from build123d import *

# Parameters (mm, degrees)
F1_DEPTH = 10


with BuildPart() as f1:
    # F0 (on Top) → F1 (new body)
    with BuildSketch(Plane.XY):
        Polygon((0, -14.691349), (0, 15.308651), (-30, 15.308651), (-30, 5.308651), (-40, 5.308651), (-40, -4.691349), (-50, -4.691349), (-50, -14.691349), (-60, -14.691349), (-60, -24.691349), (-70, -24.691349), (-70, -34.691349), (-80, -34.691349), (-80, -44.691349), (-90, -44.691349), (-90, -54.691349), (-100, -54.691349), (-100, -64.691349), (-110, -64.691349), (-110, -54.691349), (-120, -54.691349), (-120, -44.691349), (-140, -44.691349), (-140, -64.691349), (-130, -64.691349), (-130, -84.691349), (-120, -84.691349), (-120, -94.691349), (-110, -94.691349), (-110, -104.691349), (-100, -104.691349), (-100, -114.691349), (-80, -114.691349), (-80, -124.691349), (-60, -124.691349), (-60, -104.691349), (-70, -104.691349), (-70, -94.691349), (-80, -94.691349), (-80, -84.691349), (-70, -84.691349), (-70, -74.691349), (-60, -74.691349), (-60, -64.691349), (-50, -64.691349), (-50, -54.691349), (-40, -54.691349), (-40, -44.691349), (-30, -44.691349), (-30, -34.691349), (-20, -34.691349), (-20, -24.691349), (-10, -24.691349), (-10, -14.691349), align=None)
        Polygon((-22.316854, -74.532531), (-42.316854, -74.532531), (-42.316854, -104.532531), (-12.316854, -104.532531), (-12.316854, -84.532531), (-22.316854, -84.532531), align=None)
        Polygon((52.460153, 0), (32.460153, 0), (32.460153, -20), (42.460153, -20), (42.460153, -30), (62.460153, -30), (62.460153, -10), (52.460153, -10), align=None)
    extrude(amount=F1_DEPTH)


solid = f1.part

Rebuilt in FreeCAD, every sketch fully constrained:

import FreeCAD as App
import Part
import Sketcher
Q = App.Units.Quantity

doc = App.newDocument("Part")
body = doc.addObject("PartDesign::Body", "Body")
body.AllowCompound = True

# Sketch on XY plane
sketch1 = body.newObject("Sketcher::SketchObject", "Sketch")
sketch1.AttachmentSupport = (doc.getObject("XY_Plane"), [""])
sketch1.MapMode = "FlatFace"
sketch1.addGeometry([
    Part.LineSegment(App.Vector(0, -15, 0), App.Vector(0, 15, 0)),  # 0
    Part.LineSegment(App.Vector(0, 15, 0), App.Vector(-30, 15, 0)),  # 1
    Part.LineSegment(App.Vector(-30, 15, 0), App.Vector(-30, 5, 0)),  # 2
    Part.LineSegment(App.Vector(-30, 5, 0), App.Vector(-40, 5, 0)),  # 3
    Part.LineSegment(App.Vector(-40, 5, 0), App.Vector(-40, -5, 0)),  # 4
    Part.LineSegment(App.Vector(-40, -5, 0), App.Vector(-50, -5, 0)),  # 5
    Part.LineSegment(App.Vector(-50, -5, 0), App.Vector(-50, -15, 0)),  # 6
    Part.LineSegment(App.Vector(-50, -15, 0), App.Vector(-60, -15, 0)),  # 7
    Part.LineSegment(App.Vector(-60, -15, 0), App.Vector(-60, -25, 0)),  # 8
    Part.LineSegment(App.Vector(-60, -25, 0), App.Vector(-70, -25, 0)),  # 9
    Part.LineSegment(App.Vector(-70, -25, 0), App.Vector(-70, -35, 0)),  # 10
    Part.LineSegment(App.Vector(-70, -35, 0), App.Vector(-80, -35, 0)),  # 11
    Part.LineSegment(App.Vector(-80, -35, 0), App.Vector(-80, -45, 0)),  # 12
    Part.LineSegment(App.Vector(-80, -45, 0), App.Vector(-90, -45, 0)),  # 13
    Part.LineSegment(App.Vector(-90, -45, 0), App.Vector(-90, -55, 0)),  # 14
    Part.LineSegment(App.Vector(-90, -55, 0), App.Vector(-100, -55, 0)),  # 15
    Part.LineSegment(App.Vector(-100, -55, 0), App.Vector(-100, -65, 0)),  # 16
    Part.LineSegment(App.Vector(-100, -65, 0), App.Vector(-110, -65, 0)),  # 17
    Part.LineSegment(App.Vector(-110, -65, 0), App.Vector(-110, -55, 0)),  # 18
    Part.LineSegment(App.Vector(-110, -55, 0), App.Vector(-120, -55, 0)),  # 19
    Part.LineSegment(App.Vector(-120, -55, 0), App.Vector(-120, -45, 0)),  # 20
    Part.LineSegment(App.Vector(-120, -45, 0), App.Vector(-140, -45, 0)),  # 21
    Part.LineSegment(App.Vector(-140, -45, 0), App.Vector(-140, -65, 0)),  # 22
    Part.LineSegment(App.Vector(-140, -65, 0), App.Vector(-130, -65, 0)),  # 23
    Part.LineSegment(App.Vector(-130, -65, 0), App.Vector(-130, -85, 0)),  # 24
    Part.LineSegment(App.Vector(-130, -85, 0), App.Vector(-120, -85, 0)),  # 25
    Part.LineSegment(App.Vector(-120, -85, 0), App.Vector(-120, -95, 0)),  # 26
    Part.LineSegment(App.Vector(-120, -95, 0), App.Vector(-110, -95, 0)),  # 27
    Part.LineSegment(App.Vector(-110, -95, 0), App.Vector(-110, -105, 0)),  # 28
    Part.LineSegment(App.Vector(-110, -105, 0), App.Vector(-100, -105, 0)),  # 29
    Part.LineSegment(App.Vector(-100, -105, 0), App.Vector(-100, -115, 0)),  # 30
    Part.LineSegment(App.Vector(-100, -115, 0), App.Vector(-80, -115, 0)),  # 31
    Part.LineSegment(App.Vector(-80, -115, 0), App.Vector(-80, -125, 0)),  # 32
    Part.LineSegment(App.Vector(-80, -125, 0), App.Vector(-60, -125, 0)),  # 33
    Part.LineSegment(App.Vector(-60, -125, 0), App.Vector(-60, -105, 0)),  # 34
    Part.LineSegment(App.Vector(-60, -105, 0), App.Vector(-70, -105, 0)),  # 35
    Part.LineSegment(App.Vector(-70, -105, 0), App.Vector(-70, -95, 0)),  # 36
    Part.LineSegment(App.Vector(-70, -95, 0), App.Vector(-80, -95, 0)),  # 37
    Part.LineSegment(App.Vector(-80, -95, 0), App.Vector(-80, -85, 0)),  # 38
    Part.LineSegment(App.Vector(-80, -85, 0), App.Vector(-70, -85, 0)),  # 39
    Part.LineSegment(App.Vector(-70, -85, 0), App.Vector(-70, -75, 0)),  # 40
    Part.LineSegment(App.Vector(-70, -75, 0), App.Vector(-60, -75, 0)),  # 41
    Part.LineSegment(App.Vector(-60, -75, 0), App.Vector(-60, -65, 0)),  # 42
    Part.LineSegment(App.Vector(-60, -65, 0), App.Vector(-50, -65, 0)),  # 43
    Part.LineSegment(App.Vector(-50, -65, 0), App.Vector(-50, -55, 0)),  # 44
    Part.LineSegment(App.Vector(-50, -55, 0), App.Vector(-40, -55, 0)),  # 45
    Part.LineSegment(App.Vector(-40, -55, 0), App.Vector(-40, -45, 0)),  # 46
    Part.LineSegment(App.Vector(-40, -45, 0), App.Vector(-30, -45, 0)),  # 47
    Part.LineSegment(App.Vector(-30, -45, 0), App.Vector(-30, -35, 0)),  # 48
    Part.LineSegment(App.Vector(-30, -35, 0), App.Vector(-20, -35, 0)),  # 49
    Part.LineSegment(App.Vector(-20, -35, 0), App.Vector(-20, -25, 0)),  # 50
    Part.LineSegment(App.Vector(-20, -25, 0), App.Vector(-10, -25, 0)),  # 51
    Part.LineSegment(App.Vector(-10, -25, 0), App.Vector(-10, -15, 0)),  # 52
    Part.LineSegment(App.Vector(-10, -15, 0), App.Vector(0, -15, 0)),  # 53
    Part.LineSegment(App.Vector(-22, -75, 0), App.Vector(-42, -75, 0)),  # 54
    Part.LineSegment(App.Vector(-42, -75, 0), App.Vector(-42, -105, 0)),  # 55
    Part.LineSegment(App.Vector(-42, -105, 0), App.Vector(-12, -105, 0)),  # 56
    Part.LineSegment(App.Vector(-12, -105, 0), App.Vector(-12, -85, 0)),  # 57
    Part.LineSegment(App.Vector(-12, -85, 0), App.Vector(-22, -85, 0)),  # 58
    Part.LineSegment(App.Vector(-22, -85, 0), App.Vector(-22, -75, 0)),  # 59
    Part.LineSegment(App.Vector(52, 0, 0), App.Vector(32, 0, 0)),  # 60
    Part.LineSegment(App.Vector(32, 0, 0), App.Vector(32, -20, 0)),  # 61
    Part.LineSegment(App.Vector(32, -20, 0), App.Vector(42, -20, 0)),  # 62
    Part.LineSegment(App.Vector(42, -20, 0), App.Vector(42, -30, 0)),  # 63
    Part.LineSegment(App.Vector(42, -30, 0), App.Vector(62, -30, 0)),  # 64
    Part.LineSegment(App.Vector(62, -30, 0), App.Vector(62, -10, 0)),  # 65
    Part.LineSegment(App.Vector(62, -10, 0), App.Vector(52, -10, 0)),  # 66
    Part.LineSegment(App.Vector(52, -10, 0), App.Vector(52, 0, 0)),  # 67
], False)
sketch1.addConstraint([
    Sketcher.Constraint("Coincident", 0, 2, 1, 1),
    Sketcher.Constraint("Coincident", 1, 2, 2, 1),
    Sketcher.Constraint("Coincident", 2, 2, 3, 1),
    Sketcher.Constraint("Coincident", 3, 2, 4, 1),
    Sketcher.Constraint("Coincident", 4, 2, 5, 1),
    Sketcher.Constraint("Coincident", 5, 2, 6, 1),
    Sketcher.Constraint("Coincident", 6, 2, 7, 1),
    Sketcher.Constraint("Coincident", 7, 2, 8, 1),
    Sketcher.Constraint("Coincident", 8, 2, 9, 1),
    Sketcher.Constraint("Coincident", 9, 2, 10, 1),
    Sketcher.Constraint("Coincident", 10, 2, 11, 1),
    Sketcher.Constraint("Coincident", 11, 2, 12, 1),
    Sketcher.Constraint("Coincident", 12, 2, 13, 1),
    Sketcher.Constraint("Coincident", 13, 2, 14, 1),
    Sketcher.Constraint("Coincident", 14, 2, 15, 1),
    Sketcher.Constraint("Coincident", 15, 2, 16, 1),
    Sketcher.Constraint("Coincident", 16, 2, 17, 1),
    Sketcher.Constraint("Coincident", 17, 2, 18, 1),
    Sketcher.Constraint("Coincident", 18, 2, 19, 1),
    Sketcher.Constraint("Coincident", 19, 2, 20, 1),
    Sketcher.Constraint("Coincident", 20, 2, 21, 1),
    Sketcher.Constraint("Coincident", 21, 2, 22, 1),
    Sketcher.Constraint("Coincident", 22, 2, 23, 1),
    Sketcher.Constraint("Coincident", 23, 2, 24, 1),
    Sketcher.Constraint("Coincident", 24, 2, 25, 1),
    Sketcher.Constraint("Coincident", 25, 2, 26, 1),
    Sketcher.Constraint("Coincident", 26, 2, 27, 1),
    Sketcher.Constraint("Coincident", 27, 2, 28, 1),
    Sketcher.Constraint("Coincident", 28, 2, 29, 1),
    Sketcher.Constraint("Coincident", 29, 2, 30, 1),
    Sketcher.Constraint("Coincident", 30, 2, 31, 1),
    Sketcher.Constraint("Coincident", 31, 2, 32, 1),
    Sketcher.Constraint("Coincident", 32, 2, 33, 1),
    Sketcher.Constraint("Coincident", 33, 2, 34, 1),
    Sketcher.Constraint("Coincident", 34, 2, 35, 1),
    Sketcher.Constraint("Coincident", 35, 2, 36, 1),
    Sketcher.Constraint("Coincident", 36, 2, 37, 1),
    Sketcher.Constraint("Coincident", 37, 2, 38, 1),
    Sketcher.Constraint("Coincident", 38, 2, 39, 1),
    Sketcher.Constraint("Coincident", 39, 2, 40, 1),
    Sketcher.Constraint("Coincident", 40, 2, 41, 1),
    Sketcher.Constraint("Coincident", 41, 2, 42, 1),
    Sketcher.Constraint("Coincident", 42, 2, 43, 1),
    Sketcher.Constraint("Coincident", 43, 2, 44, 1),
    Sketcher.Constraint("Coincident", 44, 2, 45, 1),
    Sketcher.Constraint("Coincident", 45, 2, 46, 1),
    Sketcher.Constraint("Coincident", 46, 2, 47, 1),
    Sketcher.Constraint("Coincident", 47, 2, 48, 1),
    Sketcher.Constraint("Coincident", 48, 2, 49, 1),
    Sketcher.Constraint("Coincident", 49, 2, 50, 1),
    Sketcher.Constraint("Coincident", 50, 2, 51, 1),
    Sketcher.Constraint("Coincident", 51, 2, 52, 1),
    Sketcher.Constraint("Coincident", 52, 2, 53, 1),
    Sketcher.Constraint("Coincident", 53, 2, 0, 1),
    Sketcher.Constraint("Coincident", 54, 2, 55, 1),
    Sketcher.Constraint("Coincident", 55, 2, 56, 1),
    Sketcher.Constraint("Coincident", 56, 2, 57, 1),
    Sketcher.Constraint("Coincident", 57, 2, 58, 1),
    Sketcher.Constraint("Coincident", 58, 2, 59, 1),
    Sketcher.Constraint("Coincident", 59, 2, 54, 1),
    Sketcher.Constraint("Coincident", 60, 2, 61, 1),
    Sketcher.Constraint("Coincident", 61, 2, 62, 1),
    Sketcher.Constraint("Coincident", 62, 2, 63, 1),
    Sketcher.Constraint("Coincident", 63, 2, 64, 1),
    Sketcher.Constraint("Coincident", 64, 2, 65, 1),
    Sketcher.Constraint("Coincident", 65, 2, 66, 1),
    Sketcher.Constraint("Coincident", 66, 2, 67, 1),
    Sketcher.Constraint("Coincident", 67, 2, 60, 1),
    Sketcher.Constraint("Vertical", 0),
    Sketcher.Constraint("Horizontal", 1),
    Sketcher.Constraint("Vertical", 2),
    Sketcher.Constraint("Horizontal", 3),
    Sketcher.Constraint("Vertical", 4),
    Sketcher.Constraint("Horizontal", 5),
    Sketcher.Constraint("Vertical", 6),
    Sketcher.Constraint("Horizontal", 7),
    Sketcher.Constraint("Vertical", 8),
    Sketcher.Constraint("Horizontal", 9),
    Sketcher.Constraint("Vertical", 10),
    Sketcher.Constraint("Horizontal", 11),
    Sketcher.Constraint("Vertical", 12),
    Sketcher.Constraint("Horizontal", 13),
    Sketcher.Constraint("Vertical", 14),
    Sketcher.Constraint("Horizontal", 15),
    Sketcher.Constraint("Vertical", 16),
    Sketcher.Constraint("Horizontal", 17),
    Sketcher.Constraint("Vertical", 18),
    Sketcher.Constraint("Horizontal", 19),
    Sketcher.Constraint("Vertical", 20),
    Sketcher.Constraint("Horizontal", 21),
    Sketcher.Constraint("Vertical", 22),
    Sketcher.Constraint("Horizontal", 23),
    Sketcher.Constraint("Vertical", 24),
    Sketcher.Constraint("Horizontal", 25),
    Sketcher.Constraint("Vertical", 26),
    Sketcher.Constraint("Horizontal", 27),
    Sketcher.Constraint("Vertical", 28),
    Sketcher.Constraint("Horizontal", 29),
    Sketcher.Constraint("Vertical", 30),
    Sketcher.Constraint("Horizontal", 31),
    Sketcher.Constraint("Vertical", 32),
    Sketcher.Constraint("Horizontal", 33),
    Sketcher.Constraint("Vertical", 34),
    Sketcher.Constraint("Horizontal", 35),
    Sketcher.Constraint("Vertical", 36),
    Sketcher.Constraint("Horizontal", 37),
    Sketcher.Constraint("Vertical", 38),
    Sketcher.Constraint("Horizontal", 39),
    Sketcher.Constraint("Vertical", 40),
    Sketcher.Constraint("Horizontal", 41),
    Sketcher.Constraint("Vertical", 42),
    Sketcher.Constraint("Horizontal", 43),
    Sketcher.Constraint("Vertical", 44),
    Sketcher.Constraint("Horizontal", 45),
    Sketcher.Constraint("Vertical", 46),
    Sketcher.Constraint("Horizontal", 47),
    Sketcher.Constraint("Vertical", 48),
    Sketcher.Constraint("Horizontal", 49),
    Sketcher.Constraint("Vertical", 50),
    Sketcher.Constraint("Horizontal", 51),
    Sketcher.Constraint("Vertical", 52),
    Sketcher.Constraint("Horizontal", 53),
    Sketcher.Constraint("Horizontal", 54),
    Sketcher.Constraint("Vertical", 55),
    Sketcher.Constraint("Horizontal", 56),
    Sketcher.Constraint("Vertical", 57),
    Sketcher.Constraint("Horizontal", 58),
    Sketcher.Constraint("Vertical", 59),
    Sketcher.Constraint("Horizontal", 60),
    Sketcher.Constraint("Vertical", 61),
    Sketcher.Constraint("Horizontal", 62),
    Sketcher.Constraint("Vertical", 63),
    Sketcher.Constraint("Horizontal", 64),
    Sketcher.Constraint("Vertical", 65),
    Sketcher.Constraint("Horizontal", 66),
    Sketcher.Constraint("Vertical", 67),
    Sketcher.Constraint("PointOnObject", 0, 2, -2),
    Sketcher.Constraint("PointOnObject", 60, 2, -1),
    Sketcher.Constraint("Horizontal", 15, 2, 18, 2),
    Sketcher.Constraint("Horizontal", 13, 2, 20, 2),
    Sketcher.Constraint("Horizontal", 17, 2, 22, 2),
    Sketcher.Constraint("Horizontal", 29, 2, 34, 2),
    Sketcher.Constraint("Horizontal", 27, 2, 36, 2),
    Sketcher.Constraint("Horizontal", 25, 2, 38, 2),
    Sketcher.Constraint("Horizontal", 23, 2, 42, 2),
    Sketcher.Constraint("Horizontal", 19, 2, 44, 2),
    Sketcher.Constraint("Horizontal", 21, 2, 46, 2),
    Sketcher.Constraint("Horizontal", 11, 2, 48, 2),
    Sketcher.Constraint("Horizontal", 9, 2, 50, 2),
    Sketcher.Constraint("Horizontal", 7, 2, 52, 2),
    Sketcher.Constraint("Vertical", 20, 2, 25, 2),
    Sketcher.Constraint("Vertical", 18, 2, 27, 2),
    Sketcher.Constraint("Vertical", 16, 2, 29, 2),
    Sketcher.Constraint("Vertical", 12, 2, 31, 2),
    Sketcher.Constraint("Vertical", 8, 2, 33, 2),
    Sketcher.Constraint("Vertical", 10, 2, 35, 2),
    Sketcher.Constraint("Vertical", 32, 2, 37, 2),
    Sketcher.Constraint("Vertical", 36, 2, 39, 2),
    Sketcher.Constraint("Vertical", 34, 2, 41, 2),
    Sketcher.Constraint("Vertical", 6, 2, 43, 2),
    Sketcher.Constraint("Vertical", 4, 2, 45, 2),
    Sketcher.Constraint("Vertical", 2, 2, 47, 2),
    Sketcher.Constraint("Equal", 3, 5),
    Sketcher.Constraint("Equal", 5, 7),
    Sketcher.Constraint("Equal", 7, 9),
    Sketcher.Constraint("Equal", 9, 11),
    Sketcher.Constraint("Equal", 11, 13),
    Sketcher.Constraint("Equal", 13, 15),
    Sketcher.Constraint("Equal", 15, 17),
    Sketcher.Constraint("Equal", 17, 19),
    Sketcher.Constraint("Equal", 19, 23),
    Sketcher.Constraint("Equal", 23, 25),
    Sketcher.Constraint("Equal", 47, 49),
    Sketcher.Constraint("Equal", 49, 51),
    Sketcher.Constraint("Equal", 51, 53),
    Sketcher.Constraint("Equal", 33, 54),
    Sketcher.Constraint("Equal", 1, 56),
    Sketcher.Constraint("Equal", 54, 60),
    Sketcher.Constraint("Equal", 58, 62),
    Sketcher.Constraint("Equal", 60, 64),
    Sketcher.Constraint("Equal", 56, 0),
    Sketcher.Constraint("Equal", 66, 2),
    Sketcher.Constraint("Equal", 2, 4),
    Sketcher.Constraint("Equal", 6, 8),
    Sketcher.Constraint("Equal", 8, 10),
    Sketcher.Constraint("Equal", 10, 12),
    Sketcher.Constraint("Equal", 12, 14),
    Sketcher.Constraint("Equal", 14, 16),
    Sketcher.Constraint("Equal", 22, 24),
    Sketcher.Constraint("Equal", 20, 26),
    Sketcher.Constraint("Equal", 26, 28),
    Sketcher.Constraint("Equal", 28, 30),
    Sketcher.Constraint("Equal", 30, 32),
    Sketcher.Constraint("Equal", 38, 40),
    Sketcher.Constraint("Equal", 0, 55),
    Sketcher.Constraint("Equal", 34, 57),
    Sketcher.Constraint("Equal", 57, 61),
    Sketcher.Constraint("Equal", 59, 63),
    Sketcher.Constraint("Equal", 61, 65),
    Sketcher.Constraint("DistanceX", 1, 2, 1, 1, Q("30 mm")),
    Sketcher.Constraint("DistanceY", -1, 1, 0, 2, Q("15.308651 mm")),
    Sketcher.Constraint("DistanceY", 54, 2, -1, 1, Q("74.532531 mm")),
    Sketcher.Constraint("DistanceX", 54, 2, -1, 1, Q("42.316854 mm")),
    Sketcher.Constraint("DistanceX", -1, 1, 60, 2, Q("32.460153 mm")),
])
pad1 = body.newObject("PartDesign::Pad", "Pad")
pad1.Profile = sketch1
pad1.Length = 10

doc.recompute()
